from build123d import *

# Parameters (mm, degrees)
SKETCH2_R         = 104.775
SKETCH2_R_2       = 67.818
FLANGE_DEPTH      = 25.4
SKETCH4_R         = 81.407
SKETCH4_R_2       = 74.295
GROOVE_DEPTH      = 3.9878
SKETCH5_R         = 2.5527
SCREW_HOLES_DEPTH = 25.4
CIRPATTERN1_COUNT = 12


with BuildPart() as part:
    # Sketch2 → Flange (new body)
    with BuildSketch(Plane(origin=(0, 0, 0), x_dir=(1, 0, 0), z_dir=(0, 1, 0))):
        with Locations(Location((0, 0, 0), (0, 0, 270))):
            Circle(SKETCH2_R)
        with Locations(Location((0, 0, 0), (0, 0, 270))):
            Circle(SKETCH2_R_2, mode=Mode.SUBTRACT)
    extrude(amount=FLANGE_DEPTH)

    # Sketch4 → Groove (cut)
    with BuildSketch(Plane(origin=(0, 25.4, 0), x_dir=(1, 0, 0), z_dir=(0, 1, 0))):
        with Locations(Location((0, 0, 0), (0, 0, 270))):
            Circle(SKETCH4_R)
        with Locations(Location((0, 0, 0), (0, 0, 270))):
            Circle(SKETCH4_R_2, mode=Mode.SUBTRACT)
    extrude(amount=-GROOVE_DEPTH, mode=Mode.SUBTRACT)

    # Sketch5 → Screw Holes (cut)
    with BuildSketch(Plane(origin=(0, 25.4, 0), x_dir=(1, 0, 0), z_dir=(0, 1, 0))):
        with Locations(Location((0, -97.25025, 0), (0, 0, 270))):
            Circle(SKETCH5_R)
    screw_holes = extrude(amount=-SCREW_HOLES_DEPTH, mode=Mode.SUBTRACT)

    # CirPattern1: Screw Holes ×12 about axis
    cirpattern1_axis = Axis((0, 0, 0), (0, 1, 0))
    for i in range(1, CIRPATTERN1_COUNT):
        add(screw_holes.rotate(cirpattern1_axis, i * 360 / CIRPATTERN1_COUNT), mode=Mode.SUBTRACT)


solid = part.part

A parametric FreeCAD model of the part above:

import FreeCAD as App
import Part
import Sketcher
from FreeCAD import Vector
Q = App.Units.Quantity

doc = App.newDocument("Part")
body = doc.addObject("PartDesign::Body", "Body")

# Sketch on XZ plane
sketch1 = body.newObject("Sketcher::SketchObject", "Sketch")
sketch1.AttachmentSupport = (doc.getObject("XZ_Plane"), [""])
sketch1.MapMode = "FlatFace"
sketch1.addGeometry([
    Part.Circle(Vector(0, 0, 0), Vector(0, 0, 1), 105),
    Part.Circle(Vector(0, 0, 0), Vector(0, 0, 1), 68),
], False)
sketch1.addConstraint([
    Sketcher.Constraint("Coincident", 0, 3, -1, 1),
    Sketcher.Constraint("Coincident", 1, 3, -1, 1),
    Sketcher.Constraint("Diameter", 0, Q("8.25 in")),
    Sketcher.Constraint("Diameter", 1, Q("5.34 in")),
])
pad1 = body.newObject("PartDesign::Pad", "Pad")
pad1.Profile = sketch1
pad1.Length = Q("1 in")
pad1.Reversed = True

# Sketch on XZ plane
sketch2 = body.newObject("Sketcher::SketchObject", "Sketch001")
sketch2.AttachmentSupport = (doc.getObject("XZ_Plane"), [""])
sketch2.MapMode = "FlatFace"
sketch2.AttachmentOffset = App.Placement(Vector(0, 0, -1 * 25.4), App.Rotation())
sketch2.addGeometry([
    Part.Circle(Vector(0, 0, 0), Vector(0, 0, 1), 81),
    Part.Circle(Vector(0, 0, 0), Vector(0, 0, 1), 74),
], False)
sketch2.addConstraint([
    Sketcher.Constraint("Coincident", 0, 3, -1, 1),
    Sketcher.Constraint("Coincident", 1, 3, -1, 1),
    Sketcher.Constraint("Diameter", 0, Q("6.41 in")),
    Sketcher.Constraint("Diameter", 1, Q("5.85 in")),
])
pocket1 = body.newObject("PartDesign::Pocket", "Pocket")
pocket1.Profile = sketch2
pocket1.Length = Q("0.157 in")
pocket1.Reversed = True

# Sketch on XZ plane
sketch3 = body.newObject("Sketcher::SketchObject", "Sketch002")
sketch3.AttachmentSupport = (doc.getObject("XZ_Plane"), [""])
sketch3.MapMode = "FlatFace"
sketch3.AttachmentOffset = App.Placement(Vector(0, 0, -1 * 25.4), App.Rotation())
sketch3.addGeometry(Part.Circle(Vector(0, 97.3, 0), Vector(0, 0, 1), 2.6), False)
sketch3.addConstraint([
    Sketcher.Constraint("PointOnObject", 0, 3, -2),
    Sketcher.Constraint("Diameter", 0, Q("0.201 in")),
    Sketcher.Constraint("DistanceY", -1, 1, 0, 3, Q("97.25025 mm")),
])
pocket2 = body.newObject("PartDesign::Pocket", "Pocket001")
pocket2.Profile = sketch3
pocket2.Length = Q("1 in")
pocket2.Reversed = True
doc.recompute()

polarpattern = body.newObject("PartDesign::PolarPattern", "PolarPattern")
polarpattern.Originals = [pocket2]
polarpattern.Axis = (doc.getObject("Y_Axis"), [""])
polarpattern.Angle = 360
polarpattern.Occurrences = 12
body.Tip = polarpattern

doc.recompute()
